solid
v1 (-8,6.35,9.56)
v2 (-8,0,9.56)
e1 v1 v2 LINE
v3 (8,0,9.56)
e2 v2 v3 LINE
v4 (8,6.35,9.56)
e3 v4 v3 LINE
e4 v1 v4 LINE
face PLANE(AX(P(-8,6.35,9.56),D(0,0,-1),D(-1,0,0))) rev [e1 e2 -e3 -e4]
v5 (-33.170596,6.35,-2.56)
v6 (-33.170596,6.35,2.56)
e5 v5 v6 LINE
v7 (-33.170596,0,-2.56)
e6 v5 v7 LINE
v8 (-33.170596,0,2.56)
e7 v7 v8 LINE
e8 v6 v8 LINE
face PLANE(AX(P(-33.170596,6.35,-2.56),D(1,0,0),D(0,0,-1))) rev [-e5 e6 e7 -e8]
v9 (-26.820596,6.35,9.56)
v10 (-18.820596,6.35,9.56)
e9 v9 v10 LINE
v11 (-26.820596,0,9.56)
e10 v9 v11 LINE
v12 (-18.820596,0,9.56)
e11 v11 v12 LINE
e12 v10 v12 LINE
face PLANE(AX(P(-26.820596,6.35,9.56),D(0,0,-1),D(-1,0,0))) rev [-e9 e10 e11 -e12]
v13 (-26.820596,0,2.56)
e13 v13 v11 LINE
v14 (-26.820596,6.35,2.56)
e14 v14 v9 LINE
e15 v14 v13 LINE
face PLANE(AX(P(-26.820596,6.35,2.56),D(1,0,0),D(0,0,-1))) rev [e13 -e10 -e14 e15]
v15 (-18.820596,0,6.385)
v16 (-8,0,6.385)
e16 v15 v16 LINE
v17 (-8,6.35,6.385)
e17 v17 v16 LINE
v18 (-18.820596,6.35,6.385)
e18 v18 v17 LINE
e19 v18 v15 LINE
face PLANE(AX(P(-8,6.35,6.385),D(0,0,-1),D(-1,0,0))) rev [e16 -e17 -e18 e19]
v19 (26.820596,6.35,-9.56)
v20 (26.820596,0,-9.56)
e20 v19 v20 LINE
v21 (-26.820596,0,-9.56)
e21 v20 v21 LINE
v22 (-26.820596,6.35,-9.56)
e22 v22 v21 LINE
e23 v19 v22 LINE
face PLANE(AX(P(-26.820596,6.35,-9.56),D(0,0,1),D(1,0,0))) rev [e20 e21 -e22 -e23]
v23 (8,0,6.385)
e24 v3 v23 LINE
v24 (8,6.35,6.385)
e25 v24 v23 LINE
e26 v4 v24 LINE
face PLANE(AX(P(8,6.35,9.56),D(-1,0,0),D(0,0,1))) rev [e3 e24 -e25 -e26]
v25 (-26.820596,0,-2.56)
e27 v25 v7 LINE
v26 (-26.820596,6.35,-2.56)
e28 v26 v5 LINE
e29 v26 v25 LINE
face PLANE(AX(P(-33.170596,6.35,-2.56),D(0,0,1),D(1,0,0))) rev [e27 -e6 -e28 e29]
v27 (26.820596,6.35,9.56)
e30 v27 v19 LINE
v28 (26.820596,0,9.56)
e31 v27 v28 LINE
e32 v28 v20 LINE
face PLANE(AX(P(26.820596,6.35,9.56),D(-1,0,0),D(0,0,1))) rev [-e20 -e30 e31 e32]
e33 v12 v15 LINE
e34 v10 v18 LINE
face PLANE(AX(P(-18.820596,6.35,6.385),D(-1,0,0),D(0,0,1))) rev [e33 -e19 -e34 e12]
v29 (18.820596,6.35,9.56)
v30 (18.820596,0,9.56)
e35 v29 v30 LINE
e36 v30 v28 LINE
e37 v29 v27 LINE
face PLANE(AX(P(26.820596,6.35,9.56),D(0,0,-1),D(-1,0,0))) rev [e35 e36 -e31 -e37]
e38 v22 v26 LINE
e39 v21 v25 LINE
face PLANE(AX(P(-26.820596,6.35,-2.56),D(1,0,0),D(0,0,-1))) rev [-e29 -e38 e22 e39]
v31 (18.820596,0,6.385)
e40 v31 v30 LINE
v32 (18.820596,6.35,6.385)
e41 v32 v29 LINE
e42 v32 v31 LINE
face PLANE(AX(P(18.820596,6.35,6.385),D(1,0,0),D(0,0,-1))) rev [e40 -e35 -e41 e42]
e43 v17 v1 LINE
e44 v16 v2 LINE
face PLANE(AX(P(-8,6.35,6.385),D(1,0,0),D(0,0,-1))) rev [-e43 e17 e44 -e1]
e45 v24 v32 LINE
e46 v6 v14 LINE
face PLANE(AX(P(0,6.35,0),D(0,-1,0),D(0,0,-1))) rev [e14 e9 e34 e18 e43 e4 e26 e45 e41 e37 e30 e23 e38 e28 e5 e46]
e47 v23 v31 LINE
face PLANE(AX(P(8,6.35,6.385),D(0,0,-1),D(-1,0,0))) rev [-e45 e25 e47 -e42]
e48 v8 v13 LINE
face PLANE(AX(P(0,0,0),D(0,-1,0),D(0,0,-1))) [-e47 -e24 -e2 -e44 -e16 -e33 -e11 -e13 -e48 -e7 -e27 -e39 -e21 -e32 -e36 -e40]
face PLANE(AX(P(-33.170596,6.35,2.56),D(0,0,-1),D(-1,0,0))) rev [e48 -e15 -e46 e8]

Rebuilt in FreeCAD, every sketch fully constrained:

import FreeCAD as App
import Part
import Sketcher

V = App.Vector


def add_polygon(sketch, points):
    """Adds a closed chain of lines whose ends are joined by coincident constraints."""
    first, n = sketch.GeometryCount, len(points)
    for a, b in zip(points, points[1:] + points[:1]):
        sketch.addGeometry(Part.LineSegment(App.Vector(*a, 0), App.Vector(*b, 0)), False)
    for i in range(n):
        sketch.addConstraint(Sketcher.Constraint("Coincident", first + i, 2, first + (i + 1) % n, 1))

doc = App.newDocument("Part")
body = doc.addObject("PartDesign::Body", "Body")

sketch1 = doc.addObject("Sketcher::SketchObject", "Sketch")
body.addObject(sketch1)
sketch1.AttachmentSupport = (doc.XZ_Plane, [""])
sketch1.MapMode = "FlatFace"
add_polygon(sketch1, [(-26.8, -2.6), (-33.2, -2.6), (-33.2, 2.6), (-26.8, 2.6), (-26.8, 9.6), (-18.8, 9.6), (-18.8, 6.4), (-8, 6.4), (-8, 9.6), (8, 9.6), (8, 6.4), (18.8, 6.4), (18.8, 9.6), (26.8, 9.6), (26.8, -9.6), (-26.8, -9.6)])
sketch1.addConstraint(Sketcher.Constraint("Horizontal", 0))
sketch1.addConstraint(Sketcher.Constraint("Vertical", 1))
sketch1.addConstraint(Sketcher.Constraint("Horizontal", 2))
sketch1.addConstraint(Sketcher.Constraint("Vertical", 3))
sketch1.addConstraint(Sketcher.Constraint("Horizontal", 4))
sketch1.addConstraint(Sketcher.Constraint("Vertical", 5))
sketch1.addConstraint(Sketcher.Constraint("Horizontal", 6))
sketch1.addConstraint(Sketcher.Constraint("Vertical", 7))
sketch1.addConstraint(Sketcher.Constraint("Horizontal", 8))
sketch1.addConstraint(Sketcher.Constraint("Vertical", 9))
sketch1.addConstraint(Sketcher.Constraint("Horizontal", 10))
sketch1.addConstraint(Sketcher.Constraint("Vertical", 11))
sketch1.addConstraint(Sketcher.Constraint("Horizontal", 12))
sketch1.addConstraint(Sketcher.Constraint("Vertical", 13))
sketch1.addConstraint(Sketcher.Constraint("Horizontal", 14))
sketch1.addConstraint(Sketcher.Constraint("Vertical", 15))
sketch1.addConstraint(Sketcher.Constraint("Symmetric", 3, 2, 13, 2, -1, 1))
sketch1.addConstraint(Sketcher.Constraint("Symmetric", 12, 2, 14, 2, -1, 1))
sketch1.addConstraint(Sketcher.Constraint("Symmetric", 6, 2, 9, 2, -2))
sketch1.addConstraint(Sketcher.Constraint("Horizontal", 4, 2, 7, 2))
sketch1.addConstraint(Sketcher.Constraint("Equal", 6, 10))
sketch1.addConstraint(Sketcher.Constraint("Equal", 3, 15))
sketch1.addConstraint(Sketcher.Constraint("DistanceX", 4, 1, 4, 2, 8.0))
sketch1.addConstraint(Sketcher.Constraint("DistanceX", 8, 1, 8, 2, 16.0))
sketch1.addConstraint(Sketcher.Constraint("DistanceY", 3, 1, 3, 2, 7.0))
sketch1.addConstraint(Sketcher.Constraint("DistanceX", 0, 2, 0, 1, 6.35))
sketch1.addConstraint(Sketcher.Constraint("DistanceY", 1, 1, 1, 2, 5.12))
sketch1.addConstraint(Sketcher.Constraint("DistanceY", 5, 2, 5, 1, 3.175))
sketch1.addConstraint(Sketcher.Constraint("DistanceX", 6, 1, 6, 2, 10.820596))
pad1 = doc.addObject("PartDesign::Pad", "Pad")
body.addObject(pad1)
pad1.Profile = sketch1
pad1.Length = 6.35
pad1.Reversed = True

doc.recompute()
